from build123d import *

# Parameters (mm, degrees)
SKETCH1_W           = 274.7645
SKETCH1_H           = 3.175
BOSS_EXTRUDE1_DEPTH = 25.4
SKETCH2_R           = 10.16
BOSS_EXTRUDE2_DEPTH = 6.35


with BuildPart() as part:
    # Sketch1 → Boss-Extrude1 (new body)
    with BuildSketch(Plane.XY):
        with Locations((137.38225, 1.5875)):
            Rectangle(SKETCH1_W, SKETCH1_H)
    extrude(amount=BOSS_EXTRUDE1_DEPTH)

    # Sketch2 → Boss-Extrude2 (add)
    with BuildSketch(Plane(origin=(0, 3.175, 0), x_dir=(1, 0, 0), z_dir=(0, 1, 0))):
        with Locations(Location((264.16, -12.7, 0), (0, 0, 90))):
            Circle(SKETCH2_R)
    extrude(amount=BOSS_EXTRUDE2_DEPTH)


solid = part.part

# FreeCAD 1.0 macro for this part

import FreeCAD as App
import Part
import Sketcher

V = App.Vector
Q = App.Units.Quantity


def add_polygon(sketch, points):
    """Adds a closed chain of lines whose ends are joined by coincident constraints."""
    first, n = sketch.GeometryCount, len(points)
    for a, b in zip(points, points[1:] + points[:1]):
        sketch.addGeometry(Part.LineSegment(App.Vector(*a, 0), App.Vector(*b, 0)), False)
    for i in range(n):
        sketch.addConstraint(Sketcher.Constraint("Coincident", first + i, 2, first + (i + 1) % n, 1))

doc = App.newDocument("Part")
body = doc.addObject("PartDesign::Body", "Body")

sketch1 = doc.addObject("Sketcher::SketchObject", "Sketch")
body.addObject(sketch1)
sketch1.AttachmentSupport = (doc.XY_Plane, [""])
sketch1.MapMode = "FlatFace"
add_polygon(sketch1, [(0, 3.2), (0, 0), (274.8, 0), (274.8, 3.2)])
sketch1.addConstraint(Sketcher.Constraint("Vertical", 0))
sketch1.addConstraint(Sketcher.Constraint("Horizontal", 1))
sketch1.addConstraint(Sketcher.Constraint("Vertical", 2))
sketch1.addConstraint(Sketcher.Constraint("Horizontal", 3))
sketch1.addConstraint(Sketcher.Constraint("Coincident", 0, 2, -1, 1))
sketch1.addConstraint(Sketcher.Constraint("DistanceY", 0, 2, 0, 1, Q("0.125 in")))
sketch1.addConstraint(Sketcher.Constraint("DistanceX", 1, 1, 1, 2, Q("10.8175 in")))
pad1 = doc.addObject("PartDesign::Pad", "Pad")
body.addObject(pad1)
pad1.Profile = sketch1
pad1.Length = Q("1 in")

sketch2 = doc.addObject("Sketcher::SketchObject", "Sketch001")
body.addObject(sketch2)
sketch2.AttachmentSupport = (doc.XZ_Plane, [""])
sketch2.MapMode = "FlatFace"
sketch2.AttachmentOffset = App.Placement(V(0, 0, -0.125 * 25.4), App.Rotation())
sketch2.addGeometry(Part.Circle(V(264, 13, 0), V(0, 0, 1), 10), False)
sketch2.addConstraint(Sketcher.Constraint("Diameter", 0, Q("0.8 in")))
sketch2.addConstraint(Sketcher.Constraint("DistanceX", -1, 1, 0, 3, Q("10.4 in")))
sketch2.addConstraint(Sketcher.Constraint("DistanceY", -1, 1, 0, 3, Q("0.5 in")))
pad2 = doc.addObject("PartDesign::Pad", "Pad001")
body.addObject(pad2)
pad2.Profile = sketch2
pad2.Length = Q("0.25 in")
pad2.Reversed = True

doc.recompute()
